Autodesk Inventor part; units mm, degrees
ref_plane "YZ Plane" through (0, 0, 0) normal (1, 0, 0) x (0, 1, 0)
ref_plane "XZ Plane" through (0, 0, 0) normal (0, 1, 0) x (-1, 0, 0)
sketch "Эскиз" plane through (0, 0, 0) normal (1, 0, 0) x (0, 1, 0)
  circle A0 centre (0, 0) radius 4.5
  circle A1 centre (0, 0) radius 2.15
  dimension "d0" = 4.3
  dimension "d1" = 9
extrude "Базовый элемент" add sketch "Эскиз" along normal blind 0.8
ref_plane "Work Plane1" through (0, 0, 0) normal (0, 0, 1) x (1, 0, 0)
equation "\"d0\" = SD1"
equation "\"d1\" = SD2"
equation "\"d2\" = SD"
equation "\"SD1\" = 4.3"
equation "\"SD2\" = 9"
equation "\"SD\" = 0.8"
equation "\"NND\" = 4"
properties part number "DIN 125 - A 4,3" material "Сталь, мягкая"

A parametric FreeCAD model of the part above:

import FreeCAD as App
import Part
import Sketcher
from FreeCAD import Vector

doc = App.newDocument("Part")
params = doc.addObject("Spreadsheet::Sheet", "Params")
for row, (alias, value) in enumerate([
    ("sketch1_diameter", "9 mm"),
    ("sketch1_diameter2", "4.3 mm"),
    ("pad1_length", "0.8 mm"),
], start=1):
    params.set(f"A{row}", alias)
    params.set(f"B{row}", "=" + value)
    params.setAlias(f"B{row}", alias)

body = doc.addObject("PartDesign::Body", "Body")

sketch1 = body.newObject("Sketcher::SketchObject", "Sketch")
sketch1.AttachmentSupport = (doc.getObject("YZ_Plane"), [""])
sketch1.MapMode = "FlatFace"
sketch1.addGeometry([
    Part.Circle(Vector(0, 0, 0), Vector(0, 0, 1), 4.5),
    Part.Circle(Vector(0, 0, 0), Vector(0, 0, 1), 2.15),
], False)
sketch1.addConstraint([
    Sketcher.Constraint("Coincident", 0, 3, -1, 1),
    Sketcher.Constraint("Coincident", 1, 3, -1, 1),
    Sketcher.Constraint("Diameter", 0, 9.0),
    Sketcher.Constraint("Diameter", 1, 4.3),
])
sketch1.setExpression("Constraints[2]", "Params.sketch1_diameter")
sketch1.setExpression("Constraints[3]", "Params.sketch1_diameter2")
pad1 = body.newObject("PartDesign::Pad", "Pad")
pad1.Profile = sketch1
pad1.setExpression("Length", "Params.pad1_length")

doc.recompute()
